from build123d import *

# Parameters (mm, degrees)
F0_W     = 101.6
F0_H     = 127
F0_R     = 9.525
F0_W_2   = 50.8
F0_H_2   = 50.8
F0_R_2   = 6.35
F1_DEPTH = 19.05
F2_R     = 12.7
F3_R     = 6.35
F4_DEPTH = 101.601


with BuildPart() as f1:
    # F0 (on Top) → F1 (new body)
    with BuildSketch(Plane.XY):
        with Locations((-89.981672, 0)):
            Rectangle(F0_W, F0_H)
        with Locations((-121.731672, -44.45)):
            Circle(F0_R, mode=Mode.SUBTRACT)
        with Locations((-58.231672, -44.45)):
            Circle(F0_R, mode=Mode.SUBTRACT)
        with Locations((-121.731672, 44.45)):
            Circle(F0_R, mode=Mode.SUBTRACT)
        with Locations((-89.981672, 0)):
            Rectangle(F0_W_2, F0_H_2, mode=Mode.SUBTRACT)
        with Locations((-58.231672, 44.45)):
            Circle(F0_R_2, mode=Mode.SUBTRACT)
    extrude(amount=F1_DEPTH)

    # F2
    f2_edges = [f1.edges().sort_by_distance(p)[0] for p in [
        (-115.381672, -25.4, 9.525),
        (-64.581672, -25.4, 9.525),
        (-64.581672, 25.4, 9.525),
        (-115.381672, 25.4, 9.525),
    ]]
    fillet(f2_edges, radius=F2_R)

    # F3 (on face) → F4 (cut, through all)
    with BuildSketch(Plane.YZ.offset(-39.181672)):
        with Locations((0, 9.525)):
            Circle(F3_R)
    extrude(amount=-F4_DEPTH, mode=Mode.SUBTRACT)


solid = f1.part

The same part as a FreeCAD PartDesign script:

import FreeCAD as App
import Part
import Sketcher

V = App.Vector
Q = App.Units.Quantity


def edges_at(feature, points):
    """Names of the edges that pass closest to the given points."""
    edges = feature.Shape.Edges
    near = lambda p: min(range(len(edges)), key=lambda i: edges[i].distToShape(Part.Vertex(*p))[0])
    return sorted({f"Edge{near(p) + 1}" for p in points})


def add_polygon(sketch, points):
    """Adds a closed chain of lines whose ends are joined by coincident constraints."""
    first, n = sketch.GeometryCount, len(points)
    for a, b in zip(points, points[1:] + points[:1]):
        sketch.addGeometry(Part.LineSegment(App.Vector(*a, 0), App.Vector(*b, 0)), False)
    for i in range(n):
        sketch.addConstraint(Sketcher.Constraint("Coincident", first + i, 2, first + (i + 1) % n, 1))

doc = App.newDocument("Part")
body = doc.addObject("PartDesign::Body", "Body")

# Sketch on XY plane
sketch1 = body.newObject("Sketcher::SketchObject", "Sketch")
sketch1.AttachmentSupport = (doc.getObject("XY_Plane"), [""])
sketch1.MapMode = "FlatFace"
add_polygon(sketch1, [(-141, 64), (-141, -64), (-39, -64), (-39, 64)])  # lines 0-3
sketch1.addGeometry(Part.Circle(V(-122, -44, 0), V(0, 0, 1), 10), False)  # 4
sketch1.addGeometry(Part.Circle(V(-58, -44, 0), V(0, 0, 1), 10), False)  # 5
sketch1.addGeometry(Part.Circle(V(-122, 44, 0), V(0, 0, 1), 10), False)  # 6
add_polygon(sketch1, [(-65, -25), (-115, -25), (-115, 25), (-65, 25)])  # lines 7-10
sketch1.addGeometry(Part.Circle(V(-58, 44, 0), V(0, 0, 1), 6), False)  # 11
sketch1.addConstraint([
    Sketcher.Constraint("Vertical", 0),
    Sketcher.Constraint("Horizontal", 1),
    Sketcher.Constraint("Vertical", 2),
    Sketcher.Constraint("Horizontal", 3),
    Sketcher.Constraint("Horizontal", 7),
    Sketcher.Constraint("Vertical", 8),
    Sketcher.Constraint("Horizontal", 9),
    Sketcher.Constraint("Vertical", 10),
    Sketcher.Constraint("Equal", 4, 5),
    Sketcher.Constraint("Equal", 5, 6),
    Sketcher.Constraint("Symmetric", 4, 3, 6, 3, -1),
    Sketcher.Constraint("Symmetric", 5, 3, 11, 3, -1),
    Sketcher.Constraint("Horizontal", 4, 3, 5, 3),
    Sketcher.Constraint("Equal", 9, 8),
    Sketcher.Constraint("Diameter", 11, Q("0.5 in")),
    Sketcher.Constraint("Diameter", 4, Q("0.75 in")),
    Sketcher.Constraint("DistanceX", 1, 1, 1, 2, Q("4 in")),
    Sketcher.Constraint("DistanceX", 7, 2, 7, 1, Q("2 in")),
    Sketcher.Constraint("DistanceY", 0, 2, 0, 1, Q("5 in")),
    Sketcher.Constraint("DistanceY", 7, 2, -1, 1, Q("1 in")),
    Sketcher.Constraint("DistanceX", 0, 2, 7, 2, Q("1 in")),
    Sketcher.Constraint("DistanceY", 0, 2, -1, 1, Q("2.5 in")),
    Sketcher.Constraint("DistanceX", 4, 3, 5, 3, Q("2.5 in")),
    Sketcher.Constraint("DistanceY", 4, 3, 6, 3, Q("3.5 in")),
    Sketcher.Constraint("DistanceX", 0, 2, 4, 3, Q("0.75 in")),
    Sketcher.Constraint("DistanceX", 0, 2, -1, 1, Q("140.781672 mm")),
])
pad1 = body.newObject("PartDesign::Pad", "Pad")
pad1.Profile = sketch1
pad1.Length = Q("0.75 in")
doc.recompute()

fillet = body.newObject("PartDesign::Fillet", "Fillet")
fillet.Base = (pad1, edges_at(pad1, [
    (-115.382, -25.4, 9.525),
    (-64.582, -25.4, 9.525),
    (-64.582, 25.4, 9.525),
    (-115.382, 25.4, 9.525),
]))
fillet.Radius = Q("0.5 in")

# Sketch on YZ plane
sketch2 = body.newObject("Sketcher::SketchObject", "Sketch001")
sketch2.AttachmentSupport = (doc.getObject("YZ_Plane"), [""])
sketch2.MapMode = "FlatFace"
sketch2.AttachmentOffset = App.Placement(V(0, 0, -39.181672), App.Rotation())
sketch2.addGeometry(Part.Circle(V(0, 10, 0), V(0, 0, 1), 6), False)
sketch2.addConstraint([
    Sketcher.Constraint("PointOnObject", 0, 3, -2),
    Sketcher.Constraint("Diameter", 0, Q("0.5 in")),
    Sketcher.Constraint("DistanceY", -1, 1, 0, 3, Q("0.375 in")),
])
pocket1 = body.newObject("PartDesign::Pocket", "Pocket")
pocket1.Profile = sketch2
pocket1.Type = "ThroughAll"

doc.recompute()
